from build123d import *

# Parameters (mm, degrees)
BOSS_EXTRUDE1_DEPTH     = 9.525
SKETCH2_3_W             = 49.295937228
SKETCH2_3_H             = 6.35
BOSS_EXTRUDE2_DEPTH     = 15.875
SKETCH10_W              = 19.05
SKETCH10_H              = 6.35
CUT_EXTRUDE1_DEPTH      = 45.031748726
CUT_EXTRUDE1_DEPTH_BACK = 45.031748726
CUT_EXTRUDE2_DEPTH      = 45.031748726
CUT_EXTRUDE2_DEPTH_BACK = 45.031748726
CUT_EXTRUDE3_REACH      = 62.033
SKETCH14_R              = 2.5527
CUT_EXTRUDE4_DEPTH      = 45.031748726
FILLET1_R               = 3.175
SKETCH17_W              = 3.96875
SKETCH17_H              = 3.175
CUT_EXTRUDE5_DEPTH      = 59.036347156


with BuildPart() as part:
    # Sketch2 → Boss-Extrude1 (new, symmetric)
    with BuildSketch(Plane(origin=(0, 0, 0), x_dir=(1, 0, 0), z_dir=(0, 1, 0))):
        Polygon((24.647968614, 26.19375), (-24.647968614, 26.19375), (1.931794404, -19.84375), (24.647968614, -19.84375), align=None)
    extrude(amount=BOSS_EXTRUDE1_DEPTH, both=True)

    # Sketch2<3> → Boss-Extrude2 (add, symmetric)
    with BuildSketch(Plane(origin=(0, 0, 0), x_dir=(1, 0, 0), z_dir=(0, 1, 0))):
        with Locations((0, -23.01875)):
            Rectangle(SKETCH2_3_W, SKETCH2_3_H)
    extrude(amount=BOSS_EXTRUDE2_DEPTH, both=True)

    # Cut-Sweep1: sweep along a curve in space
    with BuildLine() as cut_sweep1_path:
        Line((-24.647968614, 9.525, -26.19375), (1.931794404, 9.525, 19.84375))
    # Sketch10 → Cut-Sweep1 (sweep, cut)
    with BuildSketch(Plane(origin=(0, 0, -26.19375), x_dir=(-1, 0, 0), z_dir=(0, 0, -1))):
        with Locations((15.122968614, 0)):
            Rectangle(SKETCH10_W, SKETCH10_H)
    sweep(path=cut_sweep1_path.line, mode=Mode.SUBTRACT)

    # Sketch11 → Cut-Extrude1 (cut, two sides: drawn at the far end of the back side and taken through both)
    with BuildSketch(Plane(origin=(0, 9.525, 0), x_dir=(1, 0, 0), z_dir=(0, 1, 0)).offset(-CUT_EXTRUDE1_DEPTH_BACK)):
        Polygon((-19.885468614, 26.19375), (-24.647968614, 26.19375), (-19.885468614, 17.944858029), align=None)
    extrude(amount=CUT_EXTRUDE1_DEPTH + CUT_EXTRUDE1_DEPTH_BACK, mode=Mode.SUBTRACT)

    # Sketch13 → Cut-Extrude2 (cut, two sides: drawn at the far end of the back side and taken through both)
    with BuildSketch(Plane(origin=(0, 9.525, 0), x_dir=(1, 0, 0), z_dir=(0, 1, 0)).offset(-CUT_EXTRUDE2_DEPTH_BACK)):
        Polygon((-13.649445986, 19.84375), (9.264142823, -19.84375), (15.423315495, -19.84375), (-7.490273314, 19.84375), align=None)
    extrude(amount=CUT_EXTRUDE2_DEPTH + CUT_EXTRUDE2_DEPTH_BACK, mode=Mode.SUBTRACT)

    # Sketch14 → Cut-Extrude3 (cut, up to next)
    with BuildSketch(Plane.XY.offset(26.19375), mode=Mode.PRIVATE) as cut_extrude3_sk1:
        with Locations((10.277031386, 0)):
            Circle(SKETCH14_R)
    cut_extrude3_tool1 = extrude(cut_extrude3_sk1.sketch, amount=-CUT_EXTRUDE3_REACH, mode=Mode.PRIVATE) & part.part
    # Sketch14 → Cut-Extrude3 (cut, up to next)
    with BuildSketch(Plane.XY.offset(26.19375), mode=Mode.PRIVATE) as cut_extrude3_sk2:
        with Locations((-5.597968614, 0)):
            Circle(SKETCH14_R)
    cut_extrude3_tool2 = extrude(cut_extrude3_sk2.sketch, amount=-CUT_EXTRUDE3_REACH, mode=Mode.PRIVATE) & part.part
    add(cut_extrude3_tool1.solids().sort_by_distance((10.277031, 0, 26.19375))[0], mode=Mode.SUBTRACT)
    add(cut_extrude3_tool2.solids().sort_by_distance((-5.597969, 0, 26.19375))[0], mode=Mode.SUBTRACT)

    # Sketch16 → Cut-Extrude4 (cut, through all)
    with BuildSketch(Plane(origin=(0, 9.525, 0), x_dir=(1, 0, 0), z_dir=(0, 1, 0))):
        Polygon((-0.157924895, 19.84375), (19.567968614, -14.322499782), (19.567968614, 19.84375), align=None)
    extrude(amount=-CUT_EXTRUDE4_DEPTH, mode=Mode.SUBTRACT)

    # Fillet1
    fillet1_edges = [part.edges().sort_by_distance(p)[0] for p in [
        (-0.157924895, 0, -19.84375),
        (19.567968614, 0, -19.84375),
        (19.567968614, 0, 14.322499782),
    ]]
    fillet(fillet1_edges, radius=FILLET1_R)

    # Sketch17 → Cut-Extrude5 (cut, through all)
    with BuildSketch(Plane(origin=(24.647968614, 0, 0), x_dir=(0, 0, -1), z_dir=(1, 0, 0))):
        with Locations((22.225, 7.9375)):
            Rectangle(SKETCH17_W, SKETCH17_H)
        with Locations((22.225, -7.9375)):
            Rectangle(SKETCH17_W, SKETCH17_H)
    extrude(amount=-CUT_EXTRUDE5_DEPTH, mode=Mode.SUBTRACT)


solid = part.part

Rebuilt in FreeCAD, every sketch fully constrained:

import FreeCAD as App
import Part
import Sketcher
from FreeCAD import Vector
Q = App.Units.Quantity


def edges_at(feature, points):
    """Names of the edges that pass closest to the given points."""
    edges = feature.Shape.Edges
    near = lambda p: min(range(len(edges)), key=lambda i: edges[i].distToShape(Part.Vertex(*p))[0])
    return sorted({f"Edge{near(p) + 1}" for p in points})

doc = App.newDocument("Part")
params = doc.addObject("Spreadsheet::Sheet", "Params")
for row, (alias, value) in enumerate([
    ("sketch1_height", "1.8125 in"),
    ("pad1_length", "0.75 in"),
    ("sketch2_height", "0.25 in"),
    ("pad2_length", "1.25 in"),
    ("sketch3_width", "0.75 in"),
    ("sketch3_height", "0.25 in"),
    ("sketch5_width", "0.1875 in"),
    ("sketch7_diameter", "0.201 in"),
    ("sketch8_diameter", "0.201 in"),
    ("fillet_radius", "0.125 in"),
    ("sketch10_width", "0.125 in"),
    ("sketch10_height", "0.15625 in"),
], start=1):
    params.set(f"A{row}", alias)
    params.set(f"B{row}", "=" + value)
    params.setAlias(f"B{row}", alias)

body = doc.addObject("PartDesign::Body", "Body")

# Sketch on XZ plane
sketch1 = body.newObject("Sketcher::SketchObject", "Sketch")
sketch1.AttachmentSupport = (doc.getObject("XZ_Plane"), [""])
sketch1.MapMode = "FlatFace"
sketch1.addGeometry(Part.LineSegment(Vector(25, -26, 0), Vector(-25, -26, 0)), False)
sketch1.addGeometry(Part.LineSegment(Vector(-25, -26, 0), Vector(2, 20, 0)), False)
sketch1.addGeometry(Part.LineSegment(Vector(2, 20, 0), Vector(25, 20, 0)), False)
sketch1.addGeometry(Part.LineSegment(Vector(25, 20, 0), Vector(25, -26, 0)), False)
sketch1.addConstraint(Sketcher.Constraint("Coincident", 0, 2, 1, 1))
sketch1.addConstraint(Sketcher.Constraint("Coincident", 1, 2, 2, 1))
sketch1.addConstraint(Sketcher.Constraint("Coincident", 2, 2, 3, 1))
sketch1.addConstraint(Sketcher.Constraint("Coincident", 3, 2, 0, 1))
sketch1.addConstraint(Sketcher.Constraint("Horizontal", 0))
sketch1.addConstraint(Sketcher.Constraint("Horizontal", 2))
sketch1.addConstraint(Sketcher.Constraint("Vertical", 3))
sketch1.addConstraint(Sketcher.Constraint("Angle", 1, Q("60 deg")))
sketch1.addConstraint(Sketcher.Constraint("DistanceY", 3, 2, 3, 1, Q("1.8125 in")))
sketch1.addConstraint(Sketcher.Constraint("DistanceY", 0, 2, -1, 1, Q("1.03125 in")))
sketch1.addConstraint(Sketcher.Constraint("DistanceX", 0, 2, 0, 1, 49.295937))
sketch1.addConstraint(Sketcher.Constraint("DistanceX", 0, 2, -1, 1, 24.647969))
sketch1.setExpression("Constraints[8]", "Params.sketch1_height")
pad1 = body.newObject("PartDesign::Pad", "Pad")
pad1.Profile = sketch1
pad1.setExpression("Length", "Params.pad1_length")
pad1.Midplane = True

# Sketch on XZ plane
sketch2 = body.newObject("Sketcher::SketchObject", "Sketch001")
sketch2.AttachmentSupport = (doc.getObject("XZ_Plane"), [""])
sketch2.MapMode = "FlatFace"
sketch2.addGeometry(Part.LineSegment(Vector(-25, 20, 0), Vector(-25, 26, 0)), False)
sketch2.addGeometry(Part.LineSegment(Vector(-25, 26, 0), Vector(25, 26, 0)), False)
sketch2.addGeometry(Part.LineSegment(Vector(25, 26, 0), Vector(25, 20, 0)), False)
sketch2.addGeometry(Part.LineSegment(Vector(25, 20, 0), Vector(-25, 20, 0)), False)
sketch2.addConstraint(Sketcher.Constraint("Coincident", 0, 2, 1, 1))
sketch2.addConstraint(Sketcher.Constraint("Coincident", 1, 2, 2, 1))
sketch2.addConstraint(Sketcher.Constraint("Coincident", 2, 2, 3, 1))
sketch2.addConstraint(Sketcher.Constraint("Coincident", 3, 2, 0, 1))
sketch2.addConstraint(Sketcher.Constraint("Vertical", 0))
sketch2.addConstraint(Sketcher.Constraint("Horizontal", 1))
sketch2.addConstraint(Sketcher.Constraint("Vertical", 2))
sketch2.addConstraint(Sketcher.Constraint("Horizontal", 3))
sketch2.addConstraint(Sketcher.Constraint("DistanceY", 0, 1, 0, 2, Q("0.25 in")))
sketch2.addConstraint(Sketcher.Constraint("DistanceY", -1, 1, 0, 2, Q("1.03125 in")))
sketch2.addConstraint(Sketcher.Constraint("DistanceX", 1, 1, 1, 2, 49.295937))
sketch2.addConstraint(Sketcher.Constraint("DistanceX", 0, 2, -1, 1, 24.647969))
sketch2.setExpression("Constraints[8]", "Params.sketch2_height")
pad2 = body.newObject("PartDesign::Pad", "Pad001")
pad2.Profile = sketch2
pad2.setExpression("Length", "Params.pad2_length")
pad2.Midplane = True

# Sketch on XY plane
sketch3 = body.newObject("Sketcher::SketchObject", "Sketch002")
sketch3.AttachmentSupport = (doc.getObject("XY_Plane"), [""])
sketch3.MapMode = "FlatFace"
sketch3.AttachmentOffset = App.Placement(Vector(0, 0, -1.03125 * 25.4), App.Rotation())
sketch3.addGeometry(Part.LineSegment(Vector(-6, 3, 0), Vector(-6, -3, 0)), False)
sketch3.addGeometry(Part.LineSegment(Vector(-6, -3, 0), Vector(-25, -3, 0)), False)
sketch3.addGeometry(Part.LineSegment(Vector(-25, -3, 0), Vector(-25, 3, 0)), False)
sketch3.addGeometry(Part.LineSegment(Vector(-25, 3, 0), Vector(-6, 3, 0)), False)
sketch3.addConstraint(Sketcher.Constraint("Coincident", 0, 2, 1, 1))
sketch3.addConstraint(Sketcher.Constraint("Coincident", 1, 2, 2, 1))
sketch3.addConstraint(Sketcher.Constraint("Coincident", 2, 2, 3, 1))
sketch3.addConstraint(Sketcher.Constraint("Coincident", 3, 2, 0, 1))
sketch3.addConstraint(Sketcher.Constraint("Vertical", 0))
sketch3.addConstraint(Sketcher.Constraint("Horizontal", 1))
sketch3.addConstraint(Sketcher.Constraint("Vertical", 2))
sketch3.addConstraint(Sketcher.Constraint("Horizontal", 3))
sketch3.addConstraint(Sketcher.Constraint("DistanceX", 1, 2, 1, 1, Q("0.75 in")))
sketch3.addConstraint(Sketcher.Constraint("DistanceY", 0, 2, 0, 1, Q("0.25 in")))
sketch3.addConstraint(Sketcher.Constraint("DistanceY", 0, 2, -1, 1, Q("0.125 in")))
sketch3.addConstraint(Sketcher.Constraint("DistanceX", 0, 2, -1, 1, 5.597969))
sketch3.setExpression("Constraints[8]", "Params.sketch3_width")
sketch3.setExpression("Constraints[9]", "Params.sketch3_height")

# Sketch on an angled plane
sketch4 = body.newObject("Sketcher::SketchObject", "Sketch003")
sketch4.Placement = App.Placement(Vector(-7.14375, 0, 4.124446), App.Rotation(Vector(0.5, 0, 0.866025404), Vector(0, 1, 0), Vector(-0.866025404, 0, 0.5), "ZXY"))
sketch4.addGeometry(Part.LineSegment(Vector(-35, 10, 0), Vector(18, 10, 0)), False)
sketch4.addConstraint(Sketcher.Constraint("Horizontal", 0))
sketch4.addConstraint(Sketcher.Constraint("DistanceY", -1, 1, 0, 1, Q("0.375 in")))
sketch4.addConstraint(Sketcher.Constraint("DistanceX", 0, 1, 0, 2, 53.159526))
sketch4.addConstraint(Sketcher.Constraint("DistanceX", -1, 1, 0, 2, 18.151089))
doc.recompute()

subtractivepipe = body.newObject("PartDesign::SubtractivePipe", "SubtractivePipe")
subtractivepipe.Profile = sketch3
subtractivepipe.Spine = (sketch4, ["Edge1"])

# Sketch on XZ plane
sketch5 = body.newObject("Sketcher::SketchObject", "Sketch004")
sketch5.AttachmentSupport = (doc.getObject("XZ_Plane"), [""])
sketch5.MapMode = "FlatFace"
sketch5.AttachmentOffset = App.Placement(Vector(0, 0, -0.375 * 25.4), App.Rotation())
sketch5.addGeometry(Part.LineSegment(Vector(-19.9, -26.2, 0), Vector(-24.6, -26.2, 0)), False)
sketch5.addGeometry(Part.LineSegment(Vector(-24.6, -26.2, 0), Vector(-19.9, -17.9, 0)), False)
sketch5.addGeometry(Part.LineSegment(Vector(-19.9, -17.9, 0), Vector(-19.9, -26.2, 0)), False)
sketch5.addConstraint(Sketcher.Constraint("Coincident", 0, 2, 1, 1))
sketch5.addConstraint(Sketcher.Constraint("Coincident", 1, 2, 2, 1))
sketch5.addConstraint(Sketcher.Constraint("Coincident", 2, 2, 0, 1))
sketch5.addConstraint(Sketcher.Constraint("Horizontal", 0))
sketch5.addConstraint(Sketcher.Constraint("Vertical", 2))
sketch5.addConstraint(Sketcher.Constraint("Angle", 1, Q("60 deg")))
sketch5.addConstraint(Sketcher.Constraint("DistanceX", 0, 2, 0, 1, Q("0.1875 in")))
sketch5.addConstraint(Sketcher.Constraint("DistanceY", 0, 2, -1, 1, Q("1.03125 in")))
sketch5.addConstraint(Sketcher.Constraint("DistanceX", 0, 2, -1, 1, 24.647969))
sketch5.setExpression("Constraints[6]", "Params.sketch5_width")
pocket1 = body.newObject("PartDesign::Pocket", "Pocket")
pocket1.Profile = sketch5
pocket1.Type = "ThroughAll"
pocket1.Midplane = True

# Sketch on XZ plane
sketch6 = body.newObject("Sketcher::SketchObject", "Sketch005")
sketch6.AttachmentSupport = (doc.getObject("XZ_Plane"), [""])
sketch6.MapMode = "FlatFace"
sketch6.AttachmentOffset = App.Placement(Vector(0, 0, -0.375 * 25.4), App.Rotation())
sketch6.addGeometry(Part.LineSegment(Vector(-14, -20, 0), Vector(9, 20, 0)), False)
sketch6.addGeometry(Part.LineSegment(Vector(9, 20, 0), Vector(15, 20, 0)), False)
sketch6.addGeometry(Part.LineSegment(Vector(15, 20, 0), Vector(-7, -20, 0)), False)
sketch6.addGeometry(Part.LineSegment(Vector(-7, -20, 0), Vector(-14, -20, 0)), False)
sketch6.addConstraint(Sketcher.Constraint("Coincident", 0, 2, 1, 1))
sketch6.addConstraint(Sketcher.Constraint("Coincident", 1, 2, 2, 1))
sketch6.addConstraint(Sketcher.Constraint("Coincident", 2, 2, 3, 1))
sketch6.addConstraint(Sketcher.Constraint("Coincident", 3, 2, 0, 1))
sketch6.addConstraint(Sketcher.Constraint("Horizontal", 1))
sketch6.addConstraint(Sketcher.Constraint("Horizontal", 3))
sketch6.addConstraint(Sketcher.Constraint("Parallel", 0, 2))
sketch6.addConstraint(Sketcher.Constraint("Angle", 0, Q("60 deg")))
sketch6.addConstraint(Sketcher.Constraint("DistanceY", -1, 1, 0, 2, Q("0.78125 in")))
sketch6.addConstraint(Sketcher.Constraint("DistanceY", 2, 2, -1, 1, Q("0.78125 in")))
sketch6.addConstraint(Sketcher.Constraint("DistanceX", 1, 1, 1, 2, 6.159173))
sketch6.addConstraint(Sketcher.Constraint("DistanceX", -1, 1, 0, 2, 9.264143))
pocket2 = body.newObject("PartDesign::Pocket", "Pocket001")
pocket2.Profile = sketch6
pocket2.Type = "ThroughAll"
pocket2.Midplane = True

# Sketch on XY plane
sketch7 = body.newObject("Sketcher::SketchObject", "Sketch006")
sketch7.AttachmentSupport = (doc.getObject("XY_Plane"), [""])
sketch7.MapMode = "FlatFace"
sketch7.AttachmentOffset = App.Placement(Vector(0, 0, 1.03125 * 25.4), App.Rotation())
sketch7.addGeometry(Part.Circle(Vector(10.3, 0, 0), Vector(0, 0, 1), 2.6), False)
sketch7.addConstraint(Sketcher.Constraint("PointOnObject", 0, 3, -1))
sketch7.addConstraint(Sketcher.Constraint("Diameter", 0, Q("0.201 in")))
sketch7.addConstraint(Sketcher.Constraint("DistanceX", -1, 1, 0, 3, 10.277031))
sketch7.setExpression("Constraints[1]", "Params.sketch7_diameter")
pocket3 = body.newObject("PartDesign::Pocket", "Pocket002")
pocket3.Profile = sketch7
pocket3.Type = "UpToFirst"

# Sketch on XY plane
sketch8 = body.newObject("Sketcher::SketchObject", "Sketch007")
sketch8.AttachmentSupport = (doc.getObject("XY_Plane"), [""])
sketch8.MapMode = "FlatFace"
sketch8.AttachmentOffset = App.Placement(Vector(0, 0, 1.03125 * 25.4), App.Rotation())
sketch8.addGeometry(Part.Circle(Vector(-5.6, 0, 0), Vector(0, 0, 1), 2.6), False)
sketch8.addConstraint(Sketcher.Constraint("PointOnObject", 0, 3, -1))
sketch8.addConstraint(Sketcher.Constraint("Diameter", 0, Q("0.201 in")))
sketch8.addConstraint(Sketcher.Constraint("DistanceX", 0, 3, -1, 1, 5.597969))
sketch8.setExpression("Constraints[1]", "Params.sketch8_diameter")
pocket4 = body.newObject("PartDesign::Pocket", "Pocket003")
pocket4.Profile = sketch8
pocket4.Type = "UpToFirst"

# Sketch on XZ plane
sketch9 = body.newObject("Sketcher::SketchObject", "Sketch008")
sketch9.AttachmentSupport = (doc.getObject("XZ_Plane"), [""])
sketch9.MapMode = "FlatFace"
sketch9.AttachmentOffset = App.Placement(Vector(0, 0, -0.375 * 25.4), App.Rotation())
sketch9.addGeometry(Part.LineSegment(Vector(0, -20, 0), Vector(20, 14, 0)), False)
sketch9.addGeometry(Part.LineSegment(Vector(20, 14, 0), Vector(20, -20, 0)), False)
sketch9.addGeometry(Part.LineSegment(Vector(20, -20, 0), Vector(0, -20, 0)), False)
sketch9.addConstraint(Sketcher.Constraint("Coincident", 0, 2, 1, 1))
sketch9.addConstraint(Sketcher.Constraint("Coincident", 1, 2, 2, 1))
sketch9.addConstraint(Sketcher.Constraint("Coincident", 2, 2, 0, 1))
sketch9.addConstraint(Sketcher.Constraint("Vertical", 1))
sketch9.addConstraint(Sketcher.Constraint("Horizontal", 2))
sketch9.addConstraint(Sketcher.Constraint("Angle", 0, Q("60 deg")))
sketch9.addConstraint(Sketcher.Constraint("DistanceY", 1, 2, -1, 1, Q("0.78125 in")))
sketch9.addConstraint(Sketcher.Constraint("DistanceY", 1, 2, 1, 1, 34.16625))
sketch9.addConstraint(Sketcher.Constraint("DistanceX", -1, 1, 0, 2, 19.567969))
pocket5 = body.newObject("PartDesign::Pocket", "Pocket004")
pocket5.Profile = sketch9
pocket5.Type = "ThroughAll"
pocket5.Reversed = True
doc.recompute()

fillet = body.newObject("PartDesign::Fillet", "Fillet")
fillet.Base = (pocket5, edges_at(pocket5, [(-0.158, 0, -19.844), (19.568, 0, -19.844), (19.568, 0, 14.322)]))
fillet.setExpression("Radius", "Params.fillet_radius")

# Sketch on YZ plane
sketch10 = body.newObject("Sketcher::SketchObject", "Sketch009")
sketch10.AttachmentSupport = (doc.getObject("YZ_Plane"), [""])
sketch10.MapMode = "FlatFace"
sketch10.AttachmentOffset = App.Placement(Vector(0, 0, 24.647969), App.Rotation())
sketch10.addGeometry(Part.LineSegment(Vector(9.5, -20.2, 0), Vector(6.3, -20.2, 0)), False)
sketch10.addGeometry(Part.LineSegment(Vector(6.3, -20.2, 0), Vector(6.3, -24.2, 0)), False)
sketch10.addGeometry(Part.LineSegment(Vector(6.3, -24.2, 0), Vector(9.5, -24.2, 0)), False)
sketch10.addGeometry(Part.LineSegment(Vector(9.5, -24.2, 0), Vector(9.5, -20.2, 0)), False)
sketch10.addGeometry(Part.LineSegment(Vector(-6.3, -20.2, 0), Vector(-9.5, -20.2, 0)), False)
sketch10.addGeometry(Part.LineSegment(Vector(-9.5, -20.2, 0), Vector(-9.5, -24.2, 0)), False)
sketch10.addGeometry(Part.LineSegment(Vector(-9.5, -24.2, 0), Vector(-6.3, -24.2, 0)), False)
sketch10.addGeometry(Part.LineSegment(Vector(-6.3, -24.2, 0), Vector(-6.3, -20.2, 0)), False)
sketch10.addConstraint(Sketcher.Constraint("Coincident", 0, 2, 1, 1))
sketch10.addConstraint(Sketcher.Constraint("Coincident", 1, 2, 2, 1))
sketch10.addConstraint(Sketcher.Constraint("Coincident", 2, 2, 3, 1))
sketch10.addConstraint(Sketcher.Constraint("Coincident", 3, 2, 0, 1))
sketch10.addConstraint(Sketcher.Constraint("Coincident", 4, 2, 5, 1))
sketch10.addConstraint(Sketcher.Constraint("Coincident", 5, 2, 6, 1))
sketch10.addConstraint(Sketcher.Constraint("Coincident", 6, 2, 7, 1))
sketch10.addConstraint(Sketcher.Constraint("Coincident", 7, 2, 4, 1))
sketch10.addConstraint(Sketcher.Constraint("Horizontal", 0))
sketch10.addConstraint(Sketcher.Constraint("Vertical", 1))
sketch10.addConstraint(Sketcher.Constraint("Horizontal", 2))
sketch10.addConstraint(Sketcher.Constraint("Vertical", 3))
sketch10.addConstraint(Sketcher.Constraint("Horizontal", 4))
sketch10.addConstraint(Sketcher.Constraint("Vertical", 5))
sketch10.addConstraint(Sketcher.Constraint("Horizontal", 6))
sketch10.addConstraint(Sketcher.Constraint("Vertical", 7))
sketch10.addConstraint(Sketcher.Constraint("Symmetric", 3, 2, 4, 2, -2))
sketch10.addConstraint(Sketcher.Constraint("Symmetric", 1, 2, 6, 2, -2))
sketch10.addConstraint(Sketcher.Constraint("DistanceX", 6, 2, 1, 2, Q("0.5 in")))
sketch10.addConstraint(Sketcher.Constraint("DistanceX", 0, 2, 0, 1, Q("0.125 in")))
sketch10.addConstraint(Sketcher.Constraint("DistanceY", 1, 2, 1, 1, Q("0.15625 in")))
sketch10.addConstraint(Sketcher.Constraint("DistanceY", 0, 2, -1, 1, Q("0.796875 in")))
sketch10.setExpression("Constraints[19]", "Params.sketch10_width")
sketch10.setExpression("Constraints[20]", "Params.sketch10_height")
pocket6 = body.newObject("PartDesign::Pocket", "Pocket005")
pocket6.Profile = sketch10
pocket6.Type = "ThroughAll"

doc.recompute()
